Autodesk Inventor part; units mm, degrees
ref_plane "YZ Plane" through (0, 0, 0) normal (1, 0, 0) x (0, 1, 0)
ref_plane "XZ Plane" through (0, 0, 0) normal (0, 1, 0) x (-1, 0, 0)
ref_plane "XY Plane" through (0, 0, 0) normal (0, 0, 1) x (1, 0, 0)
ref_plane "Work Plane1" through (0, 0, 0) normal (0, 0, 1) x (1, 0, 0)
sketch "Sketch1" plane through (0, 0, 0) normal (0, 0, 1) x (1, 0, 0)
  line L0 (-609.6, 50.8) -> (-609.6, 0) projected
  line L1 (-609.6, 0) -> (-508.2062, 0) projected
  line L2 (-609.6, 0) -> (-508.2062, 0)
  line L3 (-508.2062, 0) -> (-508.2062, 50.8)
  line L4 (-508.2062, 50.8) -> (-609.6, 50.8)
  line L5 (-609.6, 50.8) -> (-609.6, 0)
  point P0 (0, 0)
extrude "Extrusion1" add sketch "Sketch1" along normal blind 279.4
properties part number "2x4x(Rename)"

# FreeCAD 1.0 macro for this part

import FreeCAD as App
import Part
import Sketcher
from FreeCAD import Vector
Q = App.Units.Quantity

doc = App.newDocument("Part")
body = doc.addObject("PartDesign::Body", "Body")

sketch1 = body.newObject("Sketcher::SketchObject", "Sketch")
sketch1.AttachmentSupport = (doc.getObject("XY_Plane"), [""])
sketch1.MapMode = "FlatFace"
sketch1.addGeometry(Part.LineSegment(Vector(-508.2062, 50.8, 0), Vector(-609.6, 50.8, 0)), False)
sketch1.addGeometry(Part.LineSegment(Vector(-609.6, 50.8, 0), Vector(-609.6, 0, 0)), False)
sketch1.addGeometry(Part.LineSegment(Vector(-609.6, 0, 0), Vector(-508.2062, 0, 0)), False)
sketch1.addGeometry(Part.LineSegment(Vector(-508.2062, 0, 0), Vector(-508.2062, 50.8, 0)), False)
sketch1.addConstraint(Sketcher.Constraint("Coincident", 0, 2, 1, 1))
sketch1.addConstraint(Sketcher.Constraint("Coincident", 1, 2, 2, 1))
sketch1.addConstraint(Sketcher.Constraint("Coincident", 2, 2, 3, 1))
sketch1.addConstraint(Sketcher.Constraint("Coincident", 3, 2, 0, 1))
sketch1.addConstraint(Sketcher.Constraint("Horizontal", 0))
sketch1.addConstraint(Sketcher.Constraint("Vertical", 1))
sketch1.addConstraint(Sketcher.Constraint("Horizontal", 2))
sketch1.addConstraint(Sketcher.Constraint("Vertical", 3))
sketch1.addConstraint(Sketcher.Constraint("PointOnObject", 1, 2, -1))
sketch1.addConstraint(Sketcher.Constraint("DistanceY", 1, 2, 1, 1, Q("2 in")))
sketch1.addConstraint(Sketcher.Constraint("DistanceX", 0, 2, -1, 1, Q("24 in")))
sketch1.addConstraint(Sketcher.Constraint("DistanceX", 0, 2, 0, 1, 101.3938))
pad1 = body.newObject("PartDesign::Pad", "Pad")
pad1.Profile = sketch1
pad1.Length = Q("11 in")

doc.recompute()
